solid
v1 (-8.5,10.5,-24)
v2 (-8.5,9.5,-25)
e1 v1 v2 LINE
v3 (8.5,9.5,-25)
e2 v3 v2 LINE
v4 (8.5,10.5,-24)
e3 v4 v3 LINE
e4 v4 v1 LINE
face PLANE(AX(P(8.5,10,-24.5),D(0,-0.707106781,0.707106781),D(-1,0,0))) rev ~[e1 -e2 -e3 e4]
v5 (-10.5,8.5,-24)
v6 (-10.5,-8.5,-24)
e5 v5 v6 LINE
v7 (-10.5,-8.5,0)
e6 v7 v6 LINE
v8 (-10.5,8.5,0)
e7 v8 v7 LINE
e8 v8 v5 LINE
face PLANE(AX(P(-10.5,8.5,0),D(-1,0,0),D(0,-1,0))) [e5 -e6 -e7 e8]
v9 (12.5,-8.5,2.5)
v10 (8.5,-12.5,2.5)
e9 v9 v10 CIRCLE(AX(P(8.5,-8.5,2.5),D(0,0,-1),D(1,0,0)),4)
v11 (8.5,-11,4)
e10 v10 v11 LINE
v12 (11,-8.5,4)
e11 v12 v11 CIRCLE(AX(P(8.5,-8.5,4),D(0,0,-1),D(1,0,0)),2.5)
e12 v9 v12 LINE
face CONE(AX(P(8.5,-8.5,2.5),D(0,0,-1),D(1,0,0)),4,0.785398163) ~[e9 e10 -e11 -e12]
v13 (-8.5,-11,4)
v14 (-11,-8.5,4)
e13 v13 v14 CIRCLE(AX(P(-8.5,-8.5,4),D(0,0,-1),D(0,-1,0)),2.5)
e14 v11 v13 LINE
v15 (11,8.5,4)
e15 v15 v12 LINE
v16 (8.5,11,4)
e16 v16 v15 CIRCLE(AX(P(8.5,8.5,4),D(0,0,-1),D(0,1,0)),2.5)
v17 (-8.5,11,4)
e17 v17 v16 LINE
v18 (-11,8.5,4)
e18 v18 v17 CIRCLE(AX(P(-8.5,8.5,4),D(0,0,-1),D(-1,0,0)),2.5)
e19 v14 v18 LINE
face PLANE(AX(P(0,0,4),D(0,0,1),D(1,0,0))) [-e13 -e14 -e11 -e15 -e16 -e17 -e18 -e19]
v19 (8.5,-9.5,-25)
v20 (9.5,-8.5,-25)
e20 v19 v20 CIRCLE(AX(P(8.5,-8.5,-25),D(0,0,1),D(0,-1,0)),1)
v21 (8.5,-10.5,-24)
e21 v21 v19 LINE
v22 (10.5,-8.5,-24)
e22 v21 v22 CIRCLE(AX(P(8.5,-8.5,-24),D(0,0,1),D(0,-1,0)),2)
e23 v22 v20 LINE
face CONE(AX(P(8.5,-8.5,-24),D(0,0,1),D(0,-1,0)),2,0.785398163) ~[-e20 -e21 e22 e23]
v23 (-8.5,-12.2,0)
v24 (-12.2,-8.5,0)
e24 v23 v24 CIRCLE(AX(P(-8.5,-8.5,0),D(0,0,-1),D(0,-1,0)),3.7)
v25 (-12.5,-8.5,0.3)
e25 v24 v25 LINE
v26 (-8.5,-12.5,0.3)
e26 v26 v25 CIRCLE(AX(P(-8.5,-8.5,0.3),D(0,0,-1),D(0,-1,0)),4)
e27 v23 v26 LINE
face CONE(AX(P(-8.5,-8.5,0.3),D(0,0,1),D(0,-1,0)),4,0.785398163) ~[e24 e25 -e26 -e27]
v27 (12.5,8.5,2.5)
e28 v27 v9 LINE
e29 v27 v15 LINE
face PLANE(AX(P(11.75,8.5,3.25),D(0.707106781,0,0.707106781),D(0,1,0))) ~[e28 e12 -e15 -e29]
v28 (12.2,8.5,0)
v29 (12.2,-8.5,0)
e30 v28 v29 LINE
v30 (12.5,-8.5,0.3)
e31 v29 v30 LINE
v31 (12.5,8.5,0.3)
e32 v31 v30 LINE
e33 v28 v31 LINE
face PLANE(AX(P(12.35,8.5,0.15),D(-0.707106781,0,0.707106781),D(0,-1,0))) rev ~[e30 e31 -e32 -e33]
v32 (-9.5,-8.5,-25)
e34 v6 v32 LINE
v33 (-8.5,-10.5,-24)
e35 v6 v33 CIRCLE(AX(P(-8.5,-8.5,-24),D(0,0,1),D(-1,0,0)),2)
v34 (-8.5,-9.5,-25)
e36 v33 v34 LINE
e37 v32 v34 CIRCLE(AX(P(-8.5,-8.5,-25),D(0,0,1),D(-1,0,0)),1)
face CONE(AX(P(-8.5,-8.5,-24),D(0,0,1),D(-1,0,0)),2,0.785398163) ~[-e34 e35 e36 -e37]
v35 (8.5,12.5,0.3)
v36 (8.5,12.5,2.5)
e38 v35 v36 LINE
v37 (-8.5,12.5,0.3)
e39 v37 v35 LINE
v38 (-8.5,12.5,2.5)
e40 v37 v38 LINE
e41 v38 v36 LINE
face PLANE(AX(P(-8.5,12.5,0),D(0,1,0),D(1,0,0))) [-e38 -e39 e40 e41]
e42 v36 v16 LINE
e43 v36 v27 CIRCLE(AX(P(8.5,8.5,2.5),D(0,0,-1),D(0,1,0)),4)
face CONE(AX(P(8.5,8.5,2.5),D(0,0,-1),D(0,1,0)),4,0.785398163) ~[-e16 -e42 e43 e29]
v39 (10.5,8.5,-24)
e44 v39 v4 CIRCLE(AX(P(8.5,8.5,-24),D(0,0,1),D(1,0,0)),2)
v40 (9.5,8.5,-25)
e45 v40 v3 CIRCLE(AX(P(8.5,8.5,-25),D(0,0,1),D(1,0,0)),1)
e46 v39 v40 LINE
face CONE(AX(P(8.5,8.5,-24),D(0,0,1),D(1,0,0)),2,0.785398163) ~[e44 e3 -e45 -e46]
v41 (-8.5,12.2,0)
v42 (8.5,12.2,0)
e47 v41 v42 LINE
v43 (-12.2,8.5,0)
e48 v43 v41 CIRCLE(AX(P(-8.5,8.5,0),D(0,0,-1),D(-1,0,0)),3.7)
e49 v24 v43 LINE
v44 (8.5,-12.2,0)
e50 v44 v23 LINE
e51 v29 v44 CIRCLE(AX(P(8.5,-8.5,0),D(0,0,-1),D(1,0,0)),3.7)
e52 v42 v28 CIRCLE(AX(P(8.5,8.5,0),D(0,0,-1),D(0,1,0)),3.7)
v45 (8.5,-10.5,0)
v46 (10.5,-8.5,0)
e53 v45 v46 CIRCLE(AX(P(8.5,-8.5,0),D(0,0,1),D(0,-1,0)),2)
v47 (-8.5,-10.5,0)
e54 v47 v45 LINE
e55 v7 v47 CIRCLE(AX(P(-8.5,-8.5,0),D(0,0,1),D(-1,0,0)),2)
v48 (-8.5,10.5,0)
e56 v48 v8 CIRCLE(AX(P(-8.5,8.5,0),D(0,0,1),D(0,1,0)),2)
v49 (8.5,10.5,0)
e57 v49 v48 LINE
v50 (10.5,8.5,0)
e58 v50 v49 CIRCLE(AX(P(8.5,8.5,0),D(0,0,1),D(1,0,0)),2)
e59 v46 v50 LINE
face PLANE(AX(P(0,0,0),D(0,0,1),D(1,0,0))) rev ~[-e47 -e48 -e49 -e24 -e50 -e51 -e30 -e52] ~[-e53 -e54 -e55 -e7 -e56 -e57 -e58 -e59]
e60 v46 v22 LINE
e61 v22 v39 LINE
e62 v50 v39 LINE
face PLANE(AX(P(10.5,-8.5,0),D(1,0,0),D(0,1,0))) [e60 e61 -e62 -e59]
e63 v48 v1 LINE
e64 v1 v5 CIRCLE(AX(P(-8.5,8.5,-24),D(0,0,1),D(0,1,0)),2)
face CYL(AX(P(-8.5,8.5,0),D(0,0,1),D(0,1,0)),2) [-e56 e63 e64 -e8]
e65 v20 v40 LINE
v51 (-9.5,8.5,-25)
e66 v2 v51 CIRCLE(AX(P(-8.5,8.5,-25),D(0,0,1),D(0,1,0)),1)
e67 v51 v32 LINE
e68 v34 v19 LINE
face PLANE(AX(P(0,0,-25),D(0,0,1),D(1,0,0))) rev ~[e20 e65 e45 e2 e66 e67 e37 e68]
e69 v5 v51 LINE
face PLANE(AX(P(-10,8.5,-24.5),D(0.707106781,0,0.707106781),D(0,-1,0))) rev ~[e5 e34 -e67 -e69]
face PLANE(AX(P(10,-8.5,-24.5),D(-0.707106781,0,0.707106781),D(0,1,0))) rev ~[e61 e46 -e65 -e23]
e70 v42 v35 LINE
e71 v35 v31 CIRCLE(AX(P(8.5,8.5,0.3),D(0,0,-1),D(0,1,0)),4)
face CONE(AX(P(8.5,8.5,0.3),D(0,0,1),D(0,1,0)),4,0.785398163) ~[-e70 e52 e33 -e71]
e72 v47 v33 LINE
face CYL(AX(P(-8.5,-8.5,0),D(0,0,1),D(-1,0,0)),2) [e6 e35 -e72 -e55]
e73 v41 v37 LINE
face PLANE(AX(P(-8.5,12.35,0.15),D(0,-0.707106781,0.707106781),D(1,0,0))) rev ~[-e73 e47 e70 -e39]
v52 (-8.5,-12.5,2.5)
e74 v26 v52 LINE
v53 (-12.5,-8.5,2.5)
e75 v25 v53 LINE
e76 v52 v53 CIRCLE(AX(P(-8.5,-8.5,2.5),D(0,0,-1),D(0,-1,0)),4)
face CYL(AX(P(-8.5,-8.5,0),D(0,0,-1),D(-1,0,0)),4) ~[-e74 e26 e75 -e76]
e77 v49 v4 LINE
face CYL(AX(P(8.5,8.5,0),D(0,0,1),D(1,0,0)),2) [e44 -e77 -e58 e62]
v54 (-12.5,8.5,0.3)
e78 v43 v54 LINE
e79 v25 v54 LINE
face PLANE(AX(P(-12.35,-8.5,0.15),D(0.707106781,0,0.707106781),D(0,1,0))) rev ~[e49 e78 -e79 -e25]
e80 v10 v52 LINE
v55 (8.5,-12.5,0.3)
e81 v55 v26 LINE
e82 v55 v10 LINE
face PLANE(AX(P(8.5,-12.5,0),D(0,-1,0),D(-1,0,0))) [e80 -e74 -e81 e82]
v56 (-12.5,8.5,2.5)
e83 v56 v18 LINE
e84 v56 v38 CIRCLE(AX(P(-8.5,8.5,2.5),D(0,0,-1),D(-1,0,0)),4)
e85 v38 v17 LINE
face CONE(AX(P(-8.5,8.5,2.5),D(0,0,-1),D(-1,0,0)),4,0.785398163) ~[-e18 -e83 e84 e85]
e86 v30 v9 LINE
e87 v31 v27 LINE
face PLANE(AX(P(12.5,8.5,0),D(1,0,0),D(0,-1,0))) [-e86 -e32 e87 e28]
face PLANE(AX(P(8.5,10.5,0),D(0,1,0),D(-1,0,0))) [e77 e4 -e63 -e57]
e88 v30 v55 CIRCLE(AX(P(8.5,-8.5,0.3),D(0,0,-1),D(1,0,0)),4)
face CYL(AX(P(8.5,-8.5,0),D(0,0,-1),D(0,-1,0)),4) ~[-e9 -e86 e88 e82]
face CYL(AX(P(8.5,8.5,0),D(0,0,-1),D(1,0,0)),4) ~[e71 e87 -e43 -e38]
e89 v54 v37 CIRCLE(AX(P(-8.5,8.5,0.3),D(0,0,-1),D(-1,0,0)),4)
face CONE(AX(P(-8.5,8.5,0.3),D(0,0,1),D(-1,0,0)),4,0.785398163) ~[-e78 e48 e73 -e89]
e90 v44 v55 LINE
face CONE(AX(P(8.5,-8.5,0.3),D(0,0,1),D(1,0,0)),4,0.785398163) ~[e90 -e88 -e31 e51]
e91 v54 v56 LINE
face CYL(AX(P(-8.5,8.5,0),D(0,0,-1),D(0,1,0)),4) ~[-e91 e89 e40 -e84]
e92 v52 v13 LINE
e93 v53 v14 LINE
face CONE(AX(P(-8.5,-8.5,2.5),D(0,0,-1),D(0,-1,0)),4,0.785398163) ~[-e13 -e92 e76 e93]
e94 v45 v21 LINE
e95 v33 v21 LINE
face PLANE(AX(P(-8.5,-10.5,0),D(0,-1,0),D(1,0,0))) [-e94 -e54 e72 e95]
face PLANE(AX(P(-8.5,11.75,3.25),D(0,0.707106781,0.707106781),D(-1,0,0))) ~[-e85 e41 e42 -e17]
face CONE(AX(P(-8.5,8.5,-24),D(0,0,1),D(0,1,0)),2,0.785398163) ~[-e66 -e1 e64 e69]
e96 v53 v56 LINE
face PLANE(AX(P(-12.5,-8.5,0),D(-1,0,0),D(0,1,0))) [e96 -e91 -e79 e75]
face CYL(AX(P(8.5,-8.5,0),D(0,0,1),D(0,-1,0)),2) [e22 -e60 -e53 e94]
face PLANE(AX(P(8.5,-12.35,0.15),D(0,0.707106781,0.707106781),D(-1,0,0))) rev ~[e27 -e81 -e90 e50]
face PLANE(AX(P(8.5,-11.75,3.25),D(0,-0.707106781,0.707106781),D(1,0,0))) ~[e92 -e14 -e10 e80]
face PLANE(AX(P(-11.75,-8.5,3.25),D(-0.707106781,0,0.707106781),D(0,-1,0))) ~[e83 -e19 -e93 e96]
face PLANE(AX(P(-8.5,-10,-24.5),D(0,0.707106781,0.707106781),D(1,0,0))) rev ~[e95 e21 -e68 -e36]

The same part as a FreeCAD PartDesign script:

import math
import FreeCAD as App
import Part
import Sketcher

V = App.Vector
Q = App.Units.Quantity


def edges_at(feature, points):
    """Names of the edges that pass closest to the given points."""
    edges = feature.Shape.Edges
    near = lambda p: min(range(len(edges)), key=lambda i: edges[i].distToShape(Part.Vertex(*p))[0])
    return sorted({f"Edge{near(p) + 1}" for p in points})

doc = App.newDocument("Part")
params = doc.addObject("Spreadsheet::Sheet", "Params")
for row, (alias, value) in enumerate([
    ("sketch1_radius", "2 mm"),
    ("sketch1_width", "17 mm"),
    ("pad1_length", "25 mm"),
    ("sketch2_radius", "4 mm"),
    ("sketch2_width", "17 mm"),
    ("pad2_length", "4 mm"),
    ("chamfer_size", "1 mm"),
    ("chamfer2_size", "1.5 mm"),
    ("chamfer3_size", "0.3 mm"),
], start=1):
    params.set(f"A{row}", alias)
    params.set(f"B{row}", "=" + value)
    params.setAlias(f"B{row}", alias)

body = doc.addObject("PartDesign::Body", "Body")

# Sketch on XY plane
sketch1 = doc.addObject("Sketcher::SketchObject", "Sketch")
body.addObject(sketch1)
sketch1.AttachmentSupport = (doc.XY_Plane, [""])
sketch1.MapMode = "FlatFace"
sketch1.addGeometry([
    Part.ArcOfCircle(Part.Circle(V(8.5, 8.5, 0), V(0, 0, 1), 2), math.radians(0), math.radians(90)),  # 0
    Part.LineSegment(V(8.5, 10.5, 0), V(-8.5, 10.5, 0)),  # 1
    Part.ArcOfCircle(Part.Circle(V(-8.5, 8.5, 0), V(0, 0, 1), 2), math.radians(90), math.radians(180)),  # 2
    Part.LineSegment(V(-10.5, 8.5, 0), V(-10.5, -8.5, 0)),  # 3
    Part.ArcOfCircle(Part.Circle(V(-8.5, -8.5, 0), V(0, 0, 1), 2), math.radians(180), math.radians(270)),  # 4
    Part.LineSegment(V(-8.5, -10.5, 0), V(8.5, -10.5, 0)),  # 5
    Part.ArcOfCircle(Part.Circle(V(8.5, -8.5, 0), V(0, 0, 1), 2), math.radians(-90), math.radians(0)),  # 6
    Part.LineSegment(V(10.5, -8.5, 0), V(10.5, 8.5, 0)),  # 7
], False)
sketch1.addConstraint([
    Sketcher.Constraint("Tangent", 0, 2, 1, 1),
    Sketcher.Constraint("Tangent", 1, 2, 2, 1),
    Sketcher.Constraint("Tangent", 2, 2, 3, 1),
    Sketcher.Constraint("Tangent", 3, 2, 4, 1),
    Sketcher.Constraint("Tangent", 4, 2, 5, 1),
    Sketcher.Constraint("Tangent", 5, 2, 6, 1),
    Sketcher.Constraint("Tangent", 6, 2, 7, 1),
    Sketcher.Constraint("Tangent", 7, 2, 0, 1),
    Sketcher.Constraint("Horizontal", 1),
    Sketcher.Constraint("Vertical", 3),
    Sketcher.Constraint("Horizontal", 5),
    Sketcher.Constraint("Vertical", 7),
    Sketcher.Constraint("Equal", 0, 2),
    Sketcher.Constraint("Equal", 2, 4),
    Sketcher.Constraint("Equal", 4, 6),
    Sketcher.Constraint("Symmetric", 0, 3, 4, 3, -1, 1),
    Sketcher.Constraint("Equal", 5, 3),
    Sketcher.Constraint("Radius", 0, Q("2 mm")),
    Sketcher.Constraint("DistanceX", 1, 2, 1, 1, Q("17 mm")),
])
sketch1.setExpression("Constraints[17]", "Params.sketch1_radius")
sketch1.setExpression("Constraints[18]", "Params.sketch1_width")
pad1 = doc.addObject("PartDesign::Pad", "Pad")
body.addObject(pad1)
pad1.Profile = sketch1
pad1.setExpression("Length", "Params.pad1_length")
pad1.Reversed = True

# Sketch on XY plane
sketch2 = doc.addObject("Sketcher::SketchObject", "Sketch001")
body.addObject(sketch2)
sketch2.AttachmentSupport = (doc.XY_Plane, [""])
sketch2.MapMode = "FlatFace"
sketch2.addGeometry([
    Part.LineSegment(V(-12.5, 8.5, 0), V(-12.5, -8.5, 0)),  # 0
    Part.ArcOfCircle(Part.Circle(V(-8.5, -8.5, 0), V(0, 0, 1), 4), math.radians(180), math.radians(270)),  # 1
    Part.LineSegment(V(-8.5, -12.5, 0), V(8.5, -12.5, 0)),  # 2
    Part.ArcOfCircle(Part.Circle(V(8.5, -8.5, 0), V(0, 0, 1), 4), math.radians(-90), math.radians(0)),  # 3
    Part.LineSegment(V(12.5, -8.5, 0), V(12.5, 8.5, 0)),  # 4
    Part.ArcOfCircle(Part.Circle(V(8.5, 8.5, 0), V(0, 0, 1), 4), math.radians(0), math.radians(90)),  # 5
    Part.LineSegment(V(8.5, 12.5, 0), V(-8.5, 12.5, 0)),  # 6
    Part.ArcOfCircle(Part.Circle(V(-8.5, 8.5, 0), V(0, 0, 1), 4), math.radians(90), math.radians(180)),  # 7
], False)
sketch2.addConstraint([
    Sketcher.Constraint("Tangent", 0, 2, 1, 1),
    Sketcher.Constraint("Tangent", 1, 2, 2, 1),
    Sketcher.Constraint("Tangent", 2, 2, 3, 1),
    Sketcher.Constraint("Tangent", 3, 2, 4, 1),
    Sketcher.Constraint("Tangent", 4, 2, 5, 1),
    Sketcher.Constraint("Tangent", 5, 2, 6, 1),
    Sketcher.Constraint("Tangent", 6, 2, 7, 1),
    Sketcher.Constraint("Tangent", 7, 2, 0, 1),
    Sketcher.Constraint("Vertical", 0),
    Sketcher.Constraint("Horizontal", 2),
    Sketcher.Constraint("Vertical", 4),
    Sketcher.Constraint("Horizontal", 6),
    Sketcher.Constraint("Equal", 1, 3),
    Sketcher.Constraint("Equal", 3, 5),
    Sketcher.Constraint("Equal", 5, 7),
    Sketcher.Constraint("Symmetric", 1, 3, 5, 3, -1, 1),
    Sketcher.Constraint("Equal", 6, 0),
    Sketcher.Constraint("Radius", 1, Q("4 mm")),
    Sketcher.Constraint("DistanceX", 2, 1, 2, 2, Q("17 mm")),
])
sketch2.setExpression("Constraints[17]", "Params.sketch2_radius")
sketch2.setExpression("Constraints[18]", "Params.sketch2_width")
pad2 = doc.addObject("PartDesign::Pad", "Pad001")
body.addObject(pad2)
pad2.Profile = sketch2
pad2.setExpression("Length", "Params.pad2_length")
doc.recompute()

chamfer = doc.addObject("PartDesign::Chamfer", "Chamfer")
body.addObject(chamfer)
chamfer.Base = (pad2, edges_at(pad2, [
    (0, 10.5, -25),
    (9.914, 9.914, -25),
    (10.5, 0, -25),
    (9.914, -9.914, -25),
    (0, -10.5, -25),
    (-9.914, -9.914, -25),
    (-10.5, 0, -25),
    (-9.914, 9.914, -25),
]))
chamfer.setExpression("Size", "Params.chamfer_size")
doc.recompute()

chamfer2 = doc.addObject("PartDesign::Chamfer", "Chamfer001")
body.addObject(chamfer2)
chamfer2.Base = (chamfer, edges_at(chamfer, [
    (0, 12.5, 4),
    (-11.328, 11.328, 4),
    (-12.5, 0, 4),
    (-11.328, -11.328, 4),
    (0, -12.5, 4),
    (11.328, -11.328, 4),
    (12.5, 0, 4),
    (11.328, 11.328, 4),
]))
chamfer2.setExpression("Size", "Params.chamfer2_size")
doc.recompute()

chamfer3 = doc.addObject("PartDesign::Chamfer", "Chamfer002")
body.addObject(chamfer3)
chamfer3.Base = (chamfer2, edges_at(chamfer2, [
    (0, 12.5, 0),
    (11.328, 11.328, 0),
    (12.5, 0, 0),
    (11.328, -11.328, 0),
    (0, -12.5, 0),
    (-11.328, -11.328, 0),
    (-12.5, 0, 0),
    (-11.328, 11.328, 0),
]))
chamfer3.setExpression("Size", "Params.chamfer3_size")

doc.recompute()
